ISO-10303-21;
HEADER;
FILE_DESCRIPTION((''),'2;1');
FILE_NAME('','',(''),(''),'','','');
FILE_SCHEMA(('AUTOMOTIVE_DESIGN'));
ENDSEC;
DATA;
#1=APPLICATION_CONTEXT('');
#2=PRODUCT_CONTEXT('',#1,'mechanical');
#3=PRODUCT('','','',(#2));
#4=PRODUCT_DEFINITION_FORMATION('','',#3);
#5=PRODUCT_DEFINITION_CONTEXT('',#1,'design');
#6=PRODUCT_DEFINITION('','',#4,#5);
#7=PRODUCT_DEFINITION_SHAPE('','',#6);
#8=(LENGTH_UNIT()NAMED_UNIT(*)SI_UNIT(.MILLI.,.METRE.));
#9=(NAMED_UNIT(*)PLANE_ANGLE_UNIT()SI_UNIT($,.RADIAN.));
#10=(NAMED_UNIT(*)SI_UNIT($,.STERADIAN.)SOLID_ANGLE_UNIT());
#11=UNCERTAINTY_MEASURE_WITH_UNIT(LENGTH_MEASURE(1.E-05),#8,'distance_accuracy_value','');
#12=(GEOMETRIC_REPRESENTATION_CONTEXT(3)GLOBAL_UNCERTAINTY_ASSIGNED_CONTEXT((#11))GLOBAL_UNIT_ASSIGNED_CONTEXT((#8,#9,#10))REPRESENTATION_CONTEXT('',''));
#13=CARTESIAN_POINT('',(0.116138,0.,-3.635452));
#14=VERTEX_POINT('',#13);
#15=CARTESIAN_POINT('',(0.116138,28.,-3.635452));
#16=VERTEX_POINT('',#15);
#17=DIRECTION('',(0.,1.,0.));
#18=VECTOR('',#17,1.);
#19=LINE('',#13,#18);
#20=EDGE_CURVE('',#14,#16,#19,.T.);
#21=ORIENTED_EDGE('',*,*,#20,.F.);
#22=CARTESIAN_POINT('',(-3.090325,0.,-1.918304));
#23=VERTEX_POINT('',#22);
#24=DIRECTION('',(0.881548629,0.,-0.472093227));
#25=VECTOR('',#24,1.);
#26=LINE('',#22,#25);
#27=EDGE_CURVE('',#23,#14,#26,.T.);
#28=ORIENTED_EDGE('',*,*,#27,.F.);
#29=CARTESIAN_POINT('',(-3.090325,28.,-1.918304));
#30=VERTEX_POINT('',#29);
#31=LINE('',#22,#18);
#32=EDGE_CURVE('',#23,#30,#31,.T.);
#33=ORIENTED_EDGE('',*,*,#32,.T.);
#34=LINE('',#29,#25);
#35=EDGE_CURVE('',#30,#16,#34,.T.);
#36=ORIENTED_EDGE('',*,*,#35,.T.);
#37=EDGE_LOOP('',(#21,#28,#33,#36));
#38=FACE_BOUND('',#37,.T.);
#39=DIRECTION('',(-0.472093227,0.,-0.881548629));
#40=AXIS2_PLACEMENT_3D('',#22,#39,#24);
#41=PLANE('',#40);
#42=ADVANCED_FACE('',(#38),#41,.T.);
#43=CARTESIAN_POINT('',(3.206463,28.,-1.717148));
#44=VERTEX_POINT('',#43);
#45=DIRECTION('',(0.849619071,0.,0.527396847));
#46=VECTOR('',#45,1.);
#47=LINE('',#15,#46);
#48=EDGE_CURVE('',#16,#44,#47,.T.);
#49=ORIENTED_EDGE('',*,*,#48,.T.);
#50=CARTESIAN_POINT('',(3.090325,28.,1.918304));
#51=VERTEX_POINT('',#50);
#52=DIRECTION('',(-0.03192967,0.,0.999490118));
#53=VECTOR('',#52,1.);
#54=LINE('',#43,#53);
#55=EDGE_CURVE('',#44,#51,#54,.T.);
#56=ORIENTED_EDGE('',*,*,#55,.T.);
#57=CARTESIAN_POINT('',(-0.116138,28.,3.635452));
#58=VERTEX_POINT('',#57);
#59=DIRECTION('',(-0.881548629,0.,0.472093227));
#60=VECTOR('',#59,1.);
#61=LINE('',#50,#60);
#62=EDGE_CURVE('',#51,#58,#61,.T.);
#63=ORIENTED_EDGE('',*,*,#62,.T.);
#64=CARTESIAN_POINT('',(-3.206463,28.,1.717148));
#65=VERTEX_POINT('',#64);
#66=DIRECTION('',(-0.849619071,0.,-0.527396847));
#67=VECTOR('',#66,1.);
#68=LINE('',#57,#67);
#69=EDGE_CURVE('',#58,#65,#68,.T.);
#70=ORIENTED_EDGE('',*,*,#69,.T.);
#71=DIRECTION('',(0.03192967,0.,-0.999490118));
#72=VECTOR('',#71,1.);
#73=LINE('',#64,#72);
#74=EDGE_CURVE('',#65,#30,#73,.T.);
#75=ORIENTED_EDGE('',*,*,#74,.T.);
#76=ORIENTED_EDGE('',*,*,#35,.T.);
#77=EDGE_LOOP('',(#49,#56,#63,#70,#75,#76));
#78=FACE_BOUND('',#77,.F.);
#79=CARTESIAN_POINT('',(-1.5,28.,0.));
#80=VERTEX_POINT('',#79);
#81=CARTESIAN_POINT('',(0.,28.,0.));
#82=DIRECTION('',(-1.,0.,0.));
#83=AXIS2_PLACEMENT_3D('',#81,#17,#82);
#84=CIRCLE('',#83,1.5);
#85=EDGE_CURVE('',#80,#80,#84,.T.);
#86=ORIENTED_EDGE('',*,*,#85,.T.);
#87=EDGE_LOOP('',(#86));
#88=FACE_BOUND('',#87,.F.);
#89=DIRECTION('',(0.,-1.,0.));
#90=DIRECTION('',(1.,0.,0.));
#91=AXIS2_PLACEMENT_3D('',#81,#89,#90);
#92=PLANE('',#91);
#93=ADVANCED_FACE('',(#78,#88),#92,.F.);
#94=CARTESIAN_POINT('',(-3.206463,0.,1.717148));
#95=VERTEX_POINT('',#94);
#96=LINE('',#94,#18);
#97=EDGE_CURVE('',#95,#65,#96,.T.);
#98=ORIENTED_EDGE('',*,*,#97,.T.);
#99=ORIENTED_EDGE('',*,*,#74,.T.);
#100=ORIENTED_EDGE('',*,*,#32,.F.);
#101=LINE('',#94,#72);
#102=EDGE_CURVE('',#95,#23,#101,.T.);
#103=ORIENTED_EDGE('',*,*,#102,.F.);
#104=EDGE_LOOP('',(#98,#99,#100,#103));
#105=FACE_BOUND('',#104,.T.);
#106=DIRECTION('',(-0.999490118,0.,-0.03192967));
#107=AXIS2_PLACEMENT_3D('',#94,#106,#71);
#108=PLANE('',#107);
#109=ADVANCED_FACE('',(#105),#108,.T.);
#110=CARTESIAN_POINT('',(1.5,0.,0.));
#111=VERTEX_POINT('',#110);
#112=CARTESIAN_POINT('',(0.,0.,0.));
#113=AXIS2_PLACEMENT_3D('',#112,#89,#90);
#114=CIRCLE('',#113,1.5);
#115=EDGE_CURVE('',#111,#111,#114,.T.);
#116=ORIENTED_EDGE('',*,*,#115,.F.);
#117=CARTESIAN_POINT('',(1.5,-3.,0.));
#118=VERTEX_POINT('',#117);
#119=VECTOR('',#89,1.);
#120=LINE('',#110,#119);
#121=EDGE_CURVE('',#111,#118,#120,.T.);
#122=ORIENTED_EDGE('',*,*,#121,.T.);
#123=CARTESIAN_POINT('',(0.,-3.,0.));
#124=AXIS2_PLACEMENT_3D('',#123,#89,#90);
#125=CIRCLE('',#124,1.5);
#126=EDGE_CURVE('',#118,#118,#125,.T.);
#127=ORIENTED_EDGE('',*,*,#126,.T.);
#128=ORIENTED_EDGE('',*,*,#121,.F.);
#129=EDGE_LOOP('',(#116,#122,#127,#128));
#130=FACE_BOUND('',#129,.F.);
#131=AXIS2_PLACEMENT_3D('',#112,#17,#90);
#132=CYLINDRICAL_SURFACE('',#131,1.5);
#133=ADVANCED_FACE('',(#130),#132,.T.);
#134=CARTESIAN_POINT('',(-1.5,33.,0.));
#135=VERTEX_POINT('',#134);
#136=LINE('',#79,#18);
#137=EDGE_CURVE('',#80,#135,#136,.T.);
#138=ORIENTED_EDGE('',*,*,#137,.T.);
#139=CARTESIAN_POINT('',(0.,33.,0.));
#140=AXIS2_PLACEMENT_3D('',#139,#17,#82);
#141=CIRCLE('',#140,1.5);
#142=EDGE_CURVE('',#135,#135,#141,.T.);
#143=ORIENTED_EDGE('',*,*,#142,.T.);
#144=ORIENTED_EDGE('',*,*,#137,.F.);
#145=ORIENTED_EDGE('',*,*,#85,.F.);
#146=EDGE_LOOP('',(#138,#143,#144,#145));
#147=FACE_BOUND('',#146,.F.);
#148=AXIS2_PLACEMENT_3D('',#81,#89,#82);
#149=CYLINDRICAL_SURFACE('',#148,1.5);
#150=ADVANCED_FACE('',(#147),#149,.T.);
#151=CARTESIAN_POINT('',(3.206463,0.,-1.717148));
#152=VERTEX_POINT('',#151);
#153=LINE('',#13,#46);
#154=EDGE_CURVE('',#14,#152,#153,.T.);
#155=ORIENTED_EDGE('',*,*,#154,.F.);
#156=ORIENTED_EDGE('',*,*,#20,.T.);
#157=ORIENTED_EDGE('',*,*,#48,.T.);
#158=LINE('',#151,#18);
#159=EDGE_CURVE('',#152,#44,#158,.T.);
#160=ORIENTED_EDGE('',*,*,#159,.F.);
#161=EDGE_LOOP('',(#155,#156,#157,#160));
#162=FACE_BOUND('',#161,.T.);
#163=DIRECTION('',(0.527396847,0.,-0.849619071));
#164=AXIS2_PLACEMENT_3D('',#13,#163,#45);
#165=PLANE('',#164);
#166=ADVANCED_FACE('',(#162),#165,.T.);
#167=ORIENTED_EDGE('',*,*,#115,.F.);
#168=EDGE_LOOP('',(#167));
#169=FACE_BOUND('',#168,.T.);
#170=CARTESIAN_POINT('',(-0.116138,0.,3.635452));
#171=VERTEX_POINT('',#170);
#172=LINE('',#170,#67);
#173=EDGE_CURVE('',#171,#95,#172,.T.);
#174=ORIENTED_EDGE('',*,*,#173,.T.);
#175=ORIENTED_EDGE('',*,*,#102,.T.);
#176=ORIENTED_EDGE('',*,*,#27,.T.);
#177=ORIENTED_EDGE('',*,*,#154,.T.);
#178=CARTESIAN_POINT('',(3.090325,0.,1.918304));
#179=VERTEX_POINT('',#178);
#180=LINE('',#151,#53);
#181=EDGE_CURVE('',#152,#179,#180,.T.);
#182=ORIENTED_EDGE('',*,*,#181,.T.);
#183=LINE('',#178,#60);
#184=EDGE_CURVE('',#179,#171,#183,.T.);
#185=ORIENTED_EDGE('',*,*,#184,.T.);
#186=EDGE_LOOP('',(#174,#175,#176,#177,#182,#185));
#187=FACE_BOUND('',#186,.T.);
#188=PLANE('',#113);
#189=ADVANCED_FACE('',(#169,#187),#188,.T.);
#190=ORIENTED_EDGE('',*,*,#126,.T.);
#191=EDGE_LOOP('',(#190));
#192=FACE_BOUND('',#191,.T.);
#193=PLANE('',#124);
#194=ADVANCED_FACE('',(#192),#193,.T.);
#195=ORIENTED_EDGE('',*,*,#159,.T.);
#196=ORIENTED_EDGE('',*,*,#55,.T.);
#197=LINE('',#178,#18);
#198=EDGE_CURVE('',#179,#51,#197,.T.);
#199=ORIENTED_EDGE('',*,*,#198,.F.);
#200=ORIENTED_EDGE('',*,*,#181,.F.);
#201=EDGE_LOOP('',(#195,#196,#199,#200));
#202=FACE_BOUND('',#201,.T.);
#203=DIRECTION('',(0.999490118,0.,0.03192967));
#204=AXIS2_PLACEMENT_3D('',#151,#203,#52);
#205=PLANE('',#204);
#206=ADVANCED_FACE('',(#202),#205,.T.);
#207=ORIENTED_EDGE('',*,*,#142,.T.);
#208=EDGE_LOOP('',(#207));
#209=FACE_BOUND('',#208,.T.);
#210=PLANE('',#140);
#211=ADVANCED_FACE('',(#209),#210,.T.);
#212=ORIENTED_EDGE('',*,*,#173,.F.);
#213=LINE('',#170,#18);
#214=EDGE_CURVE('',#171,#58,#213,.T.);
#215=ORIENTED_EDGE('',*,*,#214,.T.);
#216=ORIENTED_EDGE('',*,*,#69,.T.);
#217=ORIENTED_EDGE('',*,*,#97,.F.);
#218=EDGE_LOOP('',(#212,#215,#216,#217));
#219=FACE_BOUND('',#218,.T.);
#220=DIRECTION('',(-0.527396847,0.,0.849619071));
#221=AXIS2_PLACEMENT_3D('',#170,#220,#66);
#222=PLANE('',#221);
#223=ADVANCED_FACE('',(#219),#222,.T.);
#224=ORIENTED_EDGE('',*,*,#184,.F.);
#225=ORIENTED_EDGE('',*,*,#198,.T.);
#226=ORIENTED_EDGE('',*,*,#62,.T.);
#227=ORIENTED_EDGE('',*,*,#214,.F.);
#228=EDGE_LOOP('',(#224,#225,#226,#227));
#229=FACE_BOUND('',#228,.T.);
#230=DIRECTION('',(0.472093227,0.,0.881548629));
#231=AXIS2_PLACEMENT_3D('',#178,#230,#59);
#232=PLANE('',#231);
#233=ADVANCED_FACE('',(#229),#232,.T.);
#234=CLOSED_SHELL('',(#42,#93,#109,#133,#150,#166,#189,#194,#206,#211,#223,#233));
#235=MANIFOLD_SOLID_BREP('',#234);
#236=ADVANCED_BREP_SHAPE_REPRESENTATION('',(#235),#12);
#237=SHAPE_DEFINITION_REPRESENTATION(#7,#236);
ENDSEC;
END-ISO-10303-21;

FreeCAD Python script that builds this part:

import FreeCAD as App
import Part
import Sketcher

V = App.Vector


def add_polygon(sketch, points):
    """Adds a closed chain of lines whose ends are joined by coincident constraints."""
    first, n = sketch.GeometryCount, len(points)
    for a, b in zip(points, points[1:] + points[:1]):
        sketch.addGeometry(Part.LineSegment(App.Vector(*a, 0), App.Vector(*b, 0)), False)
    for i in range(n):
        sketch.addConstraint(Sketcher.Constraint("Coincident", first + i, 2, first + (i + 1) % n, 1))

doc = App.newDocument("Part")
params = doc.addObject("Spreadsheet::Sheet", "Params")
for row, (alias, value) in enumerate([
    ("pad1_length", "28 mm"),
    ("sketch2_diameter", "3 mm"),
    ("pad2_length", "3 mm"),
    ("sketch3_diameter", "3 mm"),
    ("pad3_length", "5 mm"),
], start=1):
    params.set(f"A{row}", alias)
    params.set(f"B{row}", "=" + value)
    params.setAlias(f"B{row}", alias)

body = doc.addObject("PartDesign::Body", "Body")

# Sketch on XZ plane
sketch1 = doc.addObject("Sketcher::SketchObject", "Sketch")
body.addObject(sketch1)
sketch1.AttachmentSupport = (doc.XZ_Plane, [""])
sketch1.MapMode = "FlatFace"
add_polygon(sketch1, [(0.1, -3.6), (3.2, -1.7), (3.1, 1.9), (-0.1, 3.6), (-3.2, 1.7), (-3.1, -1.9)])  # lines 0-5
sketch1.addConstraint(Sketcher.Constraint("Symmetric", 0, 2, 3, 2, -1, 1))
sketch1.addConstraint(Sketcher.Constraint("Symmetric", 1, 2, 4, 2, -1, 1))
sketch1.addConstraint(Sketcher.Constraint("Symmetric", 2, 2, 5, 2, -1, 1))
sketch1.addConstraint(Sketcher.Constraint("Equal", 0, 1))
sketch1.addConstraint(Sketcher.Constraint("Equal", 1, 2))
sketch1.addConstraint(Sketcher.Constraint("DistanceX", 2, 2, 0, 2, 3.322601))
sketch1.addConstraint(Sketcher.Constraint("DistanceY", 0, 2, 2, 2, 5.3526))
sketch1.addConstraint(Sketcher.Constraint("DistanceX", 2, 2, -1, 1, 0.116138))
sketch1.addConstraint(Sketcher.Constraint("DistanceY", -1, 1, 2, 2, 3.635452))
pad1 = doc.addObject("PartDesign::Pad", "Pad")
body.addObject(pad1)
pad1.Profile = sketch1
pad1.setExpression("Length", "Params.pad1_length")
pad1.Reversed = True

# Sketch on XZ plane
sketch2 = doc.addObject("Sketcher::SketchObject", "Sketch001")
body.addObject(sketch2)
sketch2.AttachmentSupport = (doc.XZ_Plane, [""])
sketch2.MapMode = "FlatFace"
sketch2.addGeometry(Part.Circle(V(0, 0, 0), V(0, 0, 1), 1.5), False)
sketch2.addConstraint(Sketcher.Constraint("Coincident", 0, 3, -1, 1))
sketch2.addConstraint(Sketcher.Constraint("Diameter", 0, 3.0))
sketch2.setExpression("Constraints[1]", "Params.sketch2_diameter")
pad2 = doc.addObject("PartDesign::Pad", "Pad001")
body.addObject(pad2)
pad2.Profile = sketch2
pad2.setExpression("Length", "Params.pad2_length")

# Sketch on XZ plane
sketch3 = doc.addObject("Sketcher::SketchObject", "Sketch002")
body.addObject(sketch3)
sketch3.AttachmentSupport = (doc.XZ_Plane, [""])
sketch3.MapMode = "FlatFace"
sketch3.AttachmentOffset = App.Placement(V(0, 0, -28), App.Rotation())
sketch3.addGeometry(Part.Circle(V(0, 0, 0), V(0, 0, 1), 1.5), False)
sketch3.addConstraint(Sketcher.Constraint("Coincident", 0, 3, -1, 1))
sketch3.addConstraint(Sketcher.Constraint("Diameter", 0, 3.0))
sketch3.setExpression("Constraints[1]", "Params.sketch3_diameter")
pad3 = doc.addObject("PartDesign::Pad", "Pad002")
body.addObject(pad3)
pad3.Profile = sketch3
pad3.setExpression("Length", "Params.pad3_length")
pad3.Reversed = True

doc.recompute()
